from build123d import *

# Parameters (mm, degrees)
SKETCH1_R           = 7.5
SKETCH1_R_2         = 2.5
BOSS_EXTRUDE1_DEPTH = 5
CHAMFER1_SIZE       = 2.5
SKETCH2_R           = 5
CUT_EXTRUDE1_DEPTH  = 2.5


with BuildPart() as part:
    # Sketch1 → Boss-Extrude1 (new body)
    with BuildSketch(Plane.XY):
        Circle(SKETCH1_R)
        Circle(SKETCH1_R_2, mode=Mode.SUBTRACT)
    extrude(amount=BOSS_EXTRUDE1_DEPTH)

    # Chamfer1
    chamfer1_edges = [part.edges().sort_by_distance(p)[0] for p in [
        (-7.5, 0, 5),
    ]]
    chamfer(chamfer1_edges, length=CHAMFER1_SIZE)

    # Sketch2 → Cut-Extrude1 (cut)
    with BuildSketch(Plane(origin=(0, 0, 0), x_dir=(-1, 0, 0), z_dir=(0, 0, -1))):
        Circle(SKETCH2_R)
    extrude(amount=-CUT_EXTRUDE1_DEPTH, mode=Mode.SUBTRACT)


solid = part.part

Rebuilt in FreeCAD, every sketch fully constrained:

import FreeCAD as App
import Part
import Sketcher

V = App.Vector


def edges_at(feature, points):
    """Names of the edges that pass closest to the given points."""
    edges = feature.Shape.Edges
    near = lambda p: min(range(len(edges)), key=lambda i: edges[i].distToShape(Part.Vertex(*p))[0])
    return sorted({f"Edge{near(p) + 1}" for p in points})

doc = App.newDocument("Part")
body = doc.addObject("PartDesign::Body", "Body")

# Sketch on XY plane
sketch1 = body.newObject("Sketcher::SketchObject", "Sketch")
sketch1.AttachmentSupport = (doc.getObject("XY_Plane"), [""])
sketch1.MapMode = "FlatFace"
sketch1.addGeometry(Part.Circle(V(0, 0, 0), V(0, 0, 1), 7.5), False)
sketch1.addGeometry(Part.Circle(V(0, 0, 0), V(0, 0, 1), 2.5), False)
sketch1.addConstraint(Sketcher.Constraint("Coincident", 0, 3, -1, 1))
sketch1.addConstraint(Sketcher.Constraint("Coincident", 1, 3, -1, 1))
sketch1.addConstraint(Sketcher.Constraint("Diameter", 0, 15.0))
sketch1.addConstraint(Sketcher.Constraint("Diameter", 1, 5.0))
pad1 = body.newObject("PartDesign::Pad", "Pad")
pad1.Profile = sketch1
pad1.Length = 5
doc.recompute()

chamfer = body.newObject("PartDesign::Chamfer", "Chamfer")
chamfer.Base = (pad1, edges_at(pad1, [(-7.5, 0, 5)]))
chamfer.Size = 2.5

# Sketch on XY plane
sketch2 = body.newObject("Sketcher::SketchObject", "Sketch001")
sketch2.AttachmentSupport = (doc.getObject("XY_Plane"), [""])
sketch2.MapMode = "FlatFace"
sketch2.addGeometry(Part.Circle(V(0, 0, 0), V(0, 0, 1), 5), False)
sketch2.addConstraint(Sketcher.Constraint("Coincident", 0, 3, -1, 1))
sketch2.addConstraint(Sketcher.Constraint("Diameter", 0, 10.0))
pocket1 = body.newObject("PartDesign::Pocket", "Pocket")
pocket1.Profile = sketch2
pocket1.Length = 2.5
pocket1.Reversed = True

doc.recompute()
